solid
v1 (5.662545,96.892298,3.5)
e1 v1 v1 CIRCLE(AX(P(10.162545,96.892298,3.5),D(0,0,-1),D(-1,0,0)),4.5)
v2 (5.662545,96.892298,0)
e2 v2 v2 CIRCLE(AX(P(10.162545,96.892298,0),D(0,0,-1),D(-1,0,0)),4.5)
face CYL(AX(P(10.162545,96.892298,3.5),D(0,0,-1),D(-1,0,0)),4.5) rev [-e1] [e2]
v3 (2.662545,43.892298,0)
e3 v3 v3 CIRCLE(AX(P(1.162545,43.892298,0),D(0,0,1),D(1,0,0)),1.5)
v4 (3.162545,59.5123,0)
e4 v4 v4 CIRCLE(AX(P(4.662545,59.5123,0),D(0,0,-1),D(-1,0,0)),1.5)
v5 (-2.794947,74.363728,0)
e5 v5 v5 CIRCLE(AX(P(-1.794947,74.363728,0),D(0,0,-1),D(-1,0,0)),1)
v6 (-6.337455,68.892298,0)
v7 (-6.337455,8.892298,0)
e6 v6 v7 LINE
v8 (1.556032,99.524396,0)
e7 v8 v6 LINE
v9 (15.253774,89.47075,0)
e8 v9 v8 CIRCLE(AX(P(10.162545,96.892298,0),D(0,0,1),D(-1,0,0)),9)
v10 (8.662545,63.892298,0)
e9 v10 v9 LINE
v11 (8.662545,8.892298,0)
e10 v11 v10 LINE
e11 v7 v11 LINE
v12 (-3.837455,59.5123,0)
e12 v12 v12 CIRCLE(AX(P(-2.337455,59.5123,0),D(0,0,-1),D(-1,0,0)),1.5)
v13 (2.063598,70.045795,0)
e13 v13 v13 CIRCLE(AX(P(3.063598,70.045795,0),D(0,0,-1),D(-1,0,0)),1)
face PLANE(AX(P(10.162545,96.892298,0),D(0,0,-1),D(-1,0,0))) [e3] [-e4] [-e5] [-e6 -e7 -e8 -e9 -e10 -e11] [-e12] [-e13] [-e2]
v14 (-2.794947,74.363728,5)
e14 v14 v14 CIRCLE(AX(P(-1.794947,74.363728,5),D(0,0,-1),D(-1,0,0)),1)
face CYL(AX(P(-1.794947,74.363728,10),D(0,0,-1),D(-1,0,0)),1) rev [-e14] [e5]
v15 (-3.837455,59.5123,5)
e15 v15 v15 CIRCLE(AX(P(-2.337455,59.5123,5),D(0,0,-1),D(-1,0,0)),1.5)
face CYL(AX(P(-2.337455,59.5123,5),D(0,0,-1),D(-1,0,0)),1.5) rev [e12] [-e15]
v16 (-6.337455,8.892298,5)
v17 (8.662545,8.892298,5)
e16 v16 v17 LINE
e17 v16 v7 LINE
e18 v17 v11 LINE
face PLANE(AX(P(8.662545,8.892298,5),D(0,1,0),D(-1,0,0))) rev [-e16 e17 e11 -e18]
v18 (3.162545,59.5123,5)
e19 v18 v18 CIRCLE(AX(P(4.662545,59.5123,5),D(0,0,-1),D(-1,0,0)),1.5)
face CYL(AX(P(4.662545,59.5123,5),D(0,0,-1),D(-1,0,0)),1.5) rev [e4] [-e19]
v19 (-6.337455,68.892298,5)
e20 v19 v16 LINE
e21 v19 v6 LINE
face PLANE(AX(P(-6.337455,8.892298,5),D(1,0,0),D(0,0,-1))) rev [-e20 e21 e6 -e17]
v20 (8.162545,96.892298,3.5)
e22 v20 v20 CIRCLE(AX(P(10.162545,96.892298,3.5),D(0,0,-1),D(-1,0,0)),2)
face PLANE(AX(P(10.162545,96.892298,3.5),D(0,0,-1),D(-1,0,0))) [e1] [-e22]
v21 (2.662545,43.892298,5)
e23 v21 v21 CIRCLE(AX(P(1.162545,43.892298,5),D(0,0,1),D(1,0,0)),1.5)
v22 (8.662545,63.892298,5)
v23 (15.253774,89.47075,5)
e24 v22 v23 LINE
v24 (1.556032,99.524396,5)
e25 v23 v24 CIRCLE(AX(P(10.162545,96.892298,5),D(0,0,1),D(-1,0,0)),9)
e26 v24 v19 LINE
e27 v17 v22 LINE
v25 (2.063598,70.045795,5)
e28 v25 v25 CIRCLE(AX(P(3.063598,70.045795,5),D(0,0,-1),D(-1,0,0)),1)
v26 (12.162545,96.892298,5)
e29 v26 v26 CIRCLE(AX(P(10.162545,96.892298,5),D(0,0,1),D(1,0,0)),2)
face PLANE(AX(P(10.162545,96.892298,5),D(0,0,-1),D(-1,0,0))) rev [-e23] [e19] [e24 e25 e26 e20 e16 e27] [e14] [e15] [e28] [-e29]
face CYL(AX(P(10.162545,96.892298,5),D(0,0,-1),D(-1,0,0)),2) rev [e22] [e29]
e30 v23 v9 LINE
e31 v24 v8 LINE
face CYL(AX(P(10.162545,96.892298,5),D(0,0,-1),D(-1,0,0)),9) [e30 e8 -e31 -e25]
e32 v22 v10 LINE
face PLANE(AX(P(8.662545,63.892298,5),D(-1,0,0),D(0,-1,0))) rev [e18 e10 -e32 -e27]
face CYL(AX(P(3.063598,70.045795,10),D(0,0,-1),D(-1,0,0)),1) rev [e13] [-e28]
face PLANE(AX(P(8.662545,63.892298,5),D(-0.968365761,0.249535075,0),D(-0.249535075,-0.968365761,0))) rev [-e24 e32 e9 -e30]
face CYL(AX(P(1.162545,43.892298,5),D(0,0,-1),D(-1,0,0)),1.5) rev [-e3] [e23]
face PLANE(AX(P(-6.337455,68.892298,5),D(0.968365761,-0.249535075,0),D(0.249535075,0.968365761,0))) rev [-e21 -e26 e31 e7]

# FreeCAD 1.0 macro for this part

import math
import FreeCAD as App
import Part
import Sketcher
from FreeCAD import Vector
Q = App.Units.Quantity

doc = App.newDocument("Part")
body = doc.addObject("PartDesign::Body", "Body")

# Sketch on XY plane
sketch1 = doc.addObject("Sketcher::SketchObject", "Sketch")
body.addObject(sketch1)
sketch1.AttachmentSupport = (doc.XY_Plane, [""])
sketch1.MapMode = "FlatFace"
sketch1.addGeometry(Part.LineSegment(Vector(8.7, 8.9, 0), Vector(8.7, 63.9, 0)), False)
sketch1.addGeometry(Part.LineSegment(Vector(8.7, 63.9, 0), Vector(15.3, 89.5, 0)), False)
sketch1.addGeometry(Part.ArcOfCircle(Part.Circle(Vector(10.2, 96.9, 0), Vector(0, 0, 1), 9), math.radians(-56), math.radians(163)), False)
sketch1.addGeometry(Part.LineSegment(Vector(1.6, 99.5, 0), Vector(-6.3, 68.9, 0)), False)
sketch1.addGeometry(Part.LineSegment(Vector(-6.3, 68.9, 0), Vector(-6.3, 8.9, 0)), False)
sketch1.addGeometry(Part.LineSegment(Vector(-6.3, 8.9, 0), Vector(8.7, 8.9, 0)), False)
sketch1.addGeometry(Part.Circle(Vector(1.2, 43.9, 0), Vector(0, 0, 1), 1.5), False)
sketch1.addGeometry(Part.Circle(Vector(10.2, 96.9, 0), Vector(0, 0, 1), 2), False)
sketch1.addConstraint(Sketcher.Constraint("Coincident", 0, 2, 1, 1))
sketch1.addConstraint(Sketcher.Constraint("Coincident", 1, 2, 2, 1))
sketch1.addConstraint(Sketcher.Constraint("Coincident", 2, 2, 3, 1))
sketch1.addConstraint(Sketcher.Constraint("Coincident", 3, 2, 4, 1))
sketch1.addConstraint(Sketcher.Constraint("Coincident", 4, 2, 5, 1))
sketch1.addConstraint(Sketcher.Constraint("Coincident", 5, 2, 0, 1))
sketch1.addConstraint(Sketcher.Constraint("Vertical", 0))
sketch1.addConstraint(Sketcher.Constraint("Vertical", 4))
sketch1.addConstraint(Sketcher.Constraint("Horizontal", 5))
sketch1.addConstraint(Sketcher.Constraint("Coincident", 7, 3, 2, 3))
sketch1.addConstraint(Sketcher.Constraint("Parallel", 1, 3))
sketch1.addConstraint(Sketcher.Constraint("Diameter", 6, Q("3 mm")))
sketch1.addConstraint(Sketcher.Constraint("Diameter", 7, Q("4 mm")))
sketch1.addConstraint(Sketcher.Constraint("Radius", 2, Q("9 mm")))
sketch1.addConstraint(Sketcher.Constraint("DistanceX", 5, 1, 5, 2, Q("15 mm")))
sketch1.addConstraint(Sketcher.Constraint("DistanceY", 0, 1, 0, 2, Q("55 mm")))
sketch1.addConstraint(Sketcher.Constraint("DistanceY", 4, 2, 4, 1, Q("60 mm")))
sketch1.addConstraint(Sketcher.Constraint("DistanceX", 6, 3, 2, 3, Q("9 mm")))
sketch1.addConstraint(Sketcher.Constraint("DistanceY", 6, 3, 2, 3, Q("53 mm")))
sketch1.addConstraint(Sketcher.Constraint("DistanceY", 6, 3, 0, 2, Q("20 mm")))
sketch1.addConstraint(Sketcher.Constraint("Angle", 1, Q("75.549998 deg")))
sketch1.addConstraint(Sketcher.Constraint("DistanceX", 6, 3, 0, 2, Q("7.5 mm")))
sketch1.addConstraint(Sketcher.Constraint("DistanceY", -1, 1, 2, 3, Q("96.892298 mm")))
sketch1.addConstraint(Sketcher.Constraint("DistanceX", -1, 1, 2, 3, Q("10.162545 mm")))
pad1 = doc.addObject("PartDesign::Pad", "Pad")
body.addObject(pad1)
pad1.Profile = sketch1
pad1.Length = 5

# Sketch on XY plane
sketch2 = doc.addObject("Sketcher::SketchObject", "Sketch001")
body.addObject(sketch2)
sketch2.AttachmentSupport = (doc.XY_Plane, [""])
sketch2.MapMode = "FlatFace"
sketch2.addGeometry(Part.Circle(Vector(10.2, 96.9, 0), Vector(0, 0, 1), 4.5), False)
sketch2.addConstraint(Sketcher.Constraint("Diameter", 0, Q("9 mm")))
sketch2.addConstraint(Sketcher.Constraint("DistanceY", -1, 1, 0, 3, Q("96.892298 mm")))
sketch2.addConstraint(Sketcher.Constraint("DistanceX", -1, 1, 0, 3, Q("10.162545 mm")))
pocket1 = doc.addObject("PartDesign::Pocket", "Pocket")
body.addObject(pocket1)
pocket1.Profile = sketch2
pocket1.Length = 3.5
pocket1.Reversed = True

# Sketch on XY plane
sketch3 = doc.addObject("Sketcher::SketchObject", "Sketch002")
body.addObject(sketch3)
sketch3.AttachmentSupport = (doc.XY_Plane, [""])
sketch3.MapMode = "FlatFace"
sketch3.addGeometry(Part.Circle(Vector(3.1, 70, 0), Vector(0, 0, 1), 1), False)
sketch3.addGeometry(Part.Circle(Vector(-1.8, 74.4, 0), Vector(0, 0, 1), 1), False)
sketch3.addConstraint(Sketcher.Constraint("Equal", 0, 1))
sketch3.addConstraint(Sketcher.Constraint("Diameter", 0, Q("2 mm")))
sketch3.addConstraint(Sketcher.Constraint("DistanceX", -1, 1, 0, 3, Q("3.063598 mm")))
sketch3.addConstraint(Sketcher.Constraint("DistanceY", -1, 1, 0, 3, Q("70.045795 mm")))
sketch3.addConstraint(Sketcher.Constraint("DistanceX", 1, 3, -1, 1, Q("1.794947 mm")))
sketch3.addConstraint(Sketcher.Constraint("DistanceY", -1, 1, 1, 3, Q("74.363728 mm")))
pocket2 = doc.addObject("PartDesign::Pocket", "Pocket001")
body.addObject(pocket2)
pocket2.Profile = sketch3
pocket2.Length = 10
pocket2.Reversed = True

# Sketch on XY plane
sketch4 = doc.addObject("Sketcher::SketchObject", "Sketch003")
body.addObject(sketch4)
sketch4.AttachmentSupport = (doc.XY_Plane, [""])
sketch4.MapMode = "FlatFace"
sketch4.addGeometry(Part.Circle(Vector(-2.3, 59.5, 0), Vector(0, 0, 1), 1.5), False)
sketch4.addGeometry(Part.Circle(Vector(4.7, 59.5, 0), Vector(0, 0, 1), 1.5), False)
sketch4.addConstraint(Sketcher.Constraint("Equal", 0, 1))
sketch4.addConstraint(Sketcher.Constraint("Horizontal", 0, 3, 1, 3))
sketch4.addConstraint(Sketcher.Constraint("Diameter", 0, Q("3 mm")))
sketch4.addConstraint(Sketcher.Constraint("DistanceX", 0, 3, 1, 3, Q("7 mm")))
sketch4.addConstraint(Sketcher.Constraint("DistanceY", -1, 1, 0, 3, Q("59.5123 mm")))
sketch4.addConstraint(Sketcher.Constraint("DistanceX", 0, 3, -1, 1, Q("2.337455 mm")))
pocket3 = doc.addObject("PartDesign::Pocket", "Pocket002")
body.addObject(pocket3)
pocket3.Profile = sketch4
pocket3.Type = "ThroughAll"
pocket3.Reversed = True

doc.recompute()
